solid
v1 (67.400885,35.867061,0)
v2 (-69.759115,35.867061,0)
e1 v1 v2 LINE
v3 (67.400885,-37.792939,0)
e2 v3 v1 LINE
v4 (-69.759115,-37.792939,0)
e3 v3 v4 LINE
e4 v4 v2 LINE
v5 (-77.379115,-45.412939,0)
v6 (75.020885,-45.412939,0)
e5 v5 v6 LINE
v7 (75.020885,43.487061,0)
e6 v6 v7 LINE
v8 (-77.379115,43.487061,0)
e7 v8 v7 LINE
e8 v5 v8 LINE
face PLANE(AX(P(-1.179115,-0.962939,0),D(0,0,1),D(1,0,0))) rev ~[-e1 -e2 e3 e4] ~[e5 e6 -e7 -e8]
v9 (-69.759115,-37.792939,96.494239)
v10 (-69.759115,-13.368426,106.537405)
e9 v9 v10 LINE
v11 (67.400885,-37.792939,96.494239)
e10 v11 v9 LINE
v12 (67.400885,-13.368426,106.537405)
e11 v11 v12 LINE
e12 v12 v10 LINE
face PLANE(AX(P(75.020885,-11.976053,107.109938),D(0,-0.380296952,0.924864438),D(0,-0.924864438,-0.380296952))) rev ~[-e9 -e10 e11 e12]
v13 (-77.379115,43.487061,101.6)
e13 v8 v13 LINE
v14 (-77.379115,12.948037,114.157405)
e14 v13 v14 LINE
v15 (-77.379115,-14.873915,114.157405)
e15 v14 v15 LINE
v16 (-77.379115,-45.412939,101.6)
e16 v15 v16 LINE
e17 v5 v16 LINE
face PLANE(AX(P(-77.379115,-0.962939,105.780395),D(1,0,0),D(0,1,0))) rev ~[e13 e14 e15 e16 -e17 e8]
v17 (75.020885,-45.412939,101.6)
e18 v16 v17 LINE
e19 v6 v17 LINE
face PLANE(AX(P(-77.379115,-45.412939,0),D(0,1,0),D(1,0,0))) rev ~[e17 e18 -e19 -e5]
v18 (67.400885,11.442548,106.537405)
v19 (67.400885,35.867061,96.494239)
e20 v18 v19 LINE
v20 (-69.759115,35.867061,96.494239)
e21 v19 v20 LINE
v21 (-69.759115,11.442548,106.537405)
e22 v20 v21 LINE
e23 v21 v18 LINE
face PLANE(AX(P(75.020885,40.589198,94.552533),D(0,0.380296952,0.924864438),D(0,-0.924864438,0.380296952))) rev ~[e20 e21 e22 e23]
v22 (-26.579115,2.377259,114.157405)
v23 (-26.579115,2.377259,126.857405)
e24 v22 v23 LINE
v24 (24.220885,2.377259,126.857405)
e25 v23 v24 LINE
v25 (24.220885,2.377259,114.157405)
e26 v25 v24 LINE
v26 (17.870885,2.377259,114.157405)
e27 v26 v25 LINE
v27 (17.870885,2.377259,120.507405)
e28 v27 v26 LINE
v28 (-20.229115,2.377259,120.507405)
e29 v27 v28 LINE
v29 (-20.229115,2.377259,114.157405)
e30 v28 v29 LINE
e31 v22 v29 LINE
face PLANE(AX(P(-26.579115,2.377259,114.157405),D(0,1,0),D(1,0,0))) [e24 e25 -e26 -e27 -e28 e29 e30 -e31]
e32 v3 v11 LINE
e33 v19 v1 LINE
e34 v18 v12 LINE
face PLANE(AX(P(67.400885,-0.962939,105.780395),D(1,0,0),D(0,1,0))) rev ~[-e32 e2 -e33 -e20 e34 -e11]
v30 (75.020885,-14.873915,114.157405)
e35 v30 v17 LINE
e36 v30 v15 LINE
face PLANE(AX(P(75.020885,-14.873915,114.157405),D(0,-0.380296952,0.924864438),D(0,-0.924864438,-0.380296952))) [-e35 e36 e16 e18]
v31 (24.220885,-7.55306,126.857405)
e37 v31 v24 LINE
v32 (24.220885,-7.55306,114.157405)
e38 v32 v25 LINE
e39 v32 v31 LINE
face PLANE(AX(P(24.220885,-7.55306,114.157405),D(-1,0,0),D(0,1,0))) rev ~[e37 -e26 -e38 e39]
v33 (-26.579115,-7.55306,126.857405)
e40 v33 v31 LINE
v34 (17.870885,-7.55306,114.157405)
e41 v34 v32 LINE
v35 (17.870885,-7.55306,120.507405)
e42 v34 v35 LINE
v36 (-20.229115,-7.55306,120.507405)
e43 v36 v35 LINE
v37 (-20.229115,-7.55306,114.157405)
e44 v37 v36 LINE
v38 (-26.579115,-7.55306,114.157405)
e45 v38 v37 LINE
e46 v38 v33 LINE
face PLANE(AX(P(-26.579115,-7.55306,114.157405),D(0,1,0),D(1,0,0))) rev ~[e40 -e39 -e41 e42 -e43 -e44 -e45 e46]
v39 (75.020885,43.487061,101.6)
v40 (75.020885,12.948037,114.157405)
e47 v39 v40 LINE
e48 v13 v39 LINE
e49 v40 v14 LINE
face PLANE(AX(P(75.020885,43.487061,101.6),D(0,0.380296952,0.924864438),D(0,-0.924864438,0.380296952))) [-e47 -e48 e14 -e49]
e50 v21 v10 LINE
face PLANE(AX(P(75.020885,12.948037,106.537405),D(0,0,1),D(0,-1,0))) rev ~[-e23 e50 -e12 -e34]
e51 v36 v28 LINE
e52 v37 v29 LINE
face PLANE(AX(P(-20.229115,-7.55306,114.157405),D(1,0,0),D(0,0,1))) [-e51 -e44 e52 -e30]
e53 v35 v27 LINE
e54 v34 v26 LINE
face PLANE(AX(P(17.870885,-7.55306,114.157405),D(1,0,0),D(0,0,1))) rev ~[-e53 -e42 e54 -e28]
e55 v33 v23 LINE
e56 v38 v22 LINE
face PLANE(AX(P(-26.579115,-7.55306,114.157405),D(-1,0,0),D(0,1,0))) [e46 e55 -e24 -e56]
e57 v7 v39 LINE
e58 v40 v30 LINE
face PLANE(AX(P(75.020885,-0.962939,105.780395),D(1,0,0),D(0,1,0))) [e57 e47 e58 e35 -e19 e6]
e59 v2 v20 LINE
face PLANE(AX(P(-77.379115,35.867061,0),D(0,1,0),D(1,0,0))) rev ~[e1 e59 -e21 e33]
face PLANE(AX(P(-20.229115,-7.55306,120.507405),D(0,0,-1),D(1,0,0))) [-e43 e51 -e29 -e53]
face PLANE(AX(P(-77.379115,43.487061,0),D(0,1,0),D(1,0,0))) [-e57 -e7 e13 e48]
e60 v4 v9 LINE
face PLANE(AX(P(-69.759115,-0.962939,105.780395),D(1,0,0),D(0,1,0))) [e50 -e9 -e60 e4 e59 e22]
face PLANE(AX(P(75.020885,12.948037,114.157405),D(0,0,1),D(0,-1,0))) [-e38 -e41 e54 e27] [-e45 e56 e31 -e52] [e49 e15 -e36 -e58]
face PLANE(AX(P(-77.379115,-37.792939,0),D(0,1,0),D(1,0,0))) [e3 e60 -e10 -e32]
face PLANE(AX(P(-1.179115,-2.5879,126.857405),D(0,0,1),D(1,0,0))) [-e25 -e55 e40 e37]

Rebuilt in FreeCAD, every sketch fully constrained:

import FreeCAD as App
import Part
import Sketcher
from FreeCAD import Vector
Q = App.Units.Quantity


def faces_at(feature, points):
    """Names of the faces that lie closest to the given points."""
    faces = feature.Shape.Faces
    near = lambda p: min(range(len(faces)), key=lambda i: faces[i].distToShape(Part.Vertex(*p))[0])
    return sorted({f"Face{near(p) + 1}" for p in points})

doc = App.newDocument("Part")
body = doc.addObject("PartDesign::Body", "Body")

# Sketch on XY plane
sketch1 = body.newObject("Sketcher::SketchObject", "Sketch")
sketch1.AttachmentSupport = (doc.getObject("XY_Plane"), [""])
sketch1.MapMode = "FlatFace"
sketch1.addGeometry([
    Part.LineSegment(Vector(-77, 43, 0), Vector(-77, -45, 0)),
    Part.LineSegment(Vector(-77, -45, 0), Vector(75, -45, 0)),
    Part.LineSegment(Vector(75, -45, 0), Vector(75, 43, 0)),
    Part.LineSegment(Vector(75, 43, 0), Vector(-77, 43, 0)),
], False)
sketch1.addConstraint([
    Sketcher.Constraint("Coincident", 0, 2, 1, 1),
    Sketcher.Constraint("Coincident", 1, 2, 2, 1),
    Sketcher.Constraint("Coincident", 2, 2, 3, 1),
    Sketcher.Constraint("Coincident", 3, 2, 0, 1),
    Sketcher.Constraint("Vertical", 0),
    Sketcher.Constraint("Horizontal", 1),
    Sketcher.Constraint("Vertical", 2),
    Sketcher.Constraint("Horizontal", 3),
    Sketcher.Constraint("DistanceX", 1, 1, 1, 2, Q("6 in")),
    Sketcher.Constraint("DistanceY", 0, 2, 0, 1, Q("3.5 in")),
    Sketcher.Constraint("DistanceY", 0, 2, -1, 1, Q("45.412939 mm")),
    Sketcher.Constraint("DistanceX", 0, 2, -1, 1, Q("77.379115 mm")),
])
pad1 = body.newObject("PartDesign::Pad", "Pad")
pad1.Profile = sketch1
pad1.Length = Q("4 in")

# Sketch on YZ plane
sketch2 = body.newObject("Sketcher::SketchObject", "Sketch001")
sketch2.AttachmentSupport = (doc.getObject("YZ_Plane"), [""])
sketch2.MapMode = "FlatFace"
sketch2.AttachmentOffset = App.Placement(Vector(0, 0, 75.020885), App.Rotation())
sketch2.addGeometry([
    Part.LineSegment(Vector(-15, 114, 0), Vector(-45, 102, 0)),
    Part.LineSegment(Vector(-45, 102, 0), Vector(43, 102, 0)),
    Part.LineSegment(Vector(43, 102, 0), Vector(13, 114, 0)),
    Part.LineSegment(Vector(13, 114, 0), Vector(-15, 114, 0)),
], False)
sketch2.addConstraint([
    Sketcher.Constraint("Coincident", 0, 2, 1, 1),
    Sketcher.Constraint("Coincident", 1, 2, 2, 1),
    Sketcher.Constraint("Coincident", 2, 2, 3, 1),
    Sketcher.Constraint("Coincident", 3, 2, 0, 1),
    Sketcher.Constraint("Horizontal", 1),
    Sketcher.Constraint("Horizontal", 3),
    Sketcher.Constraint("Equal", 0, 2),
    Sketcher.Constraint("DistanceX", 1, 1, 1, 2, Q("3.5 in")),
    Sketcher.Constraint("DistanceY", -1, 1, 0, 2, Q("4 in")),
    Sketcher.Constraint("Distance", 0, Q("1.3 in")),
    Sketcher.Constraint("DistanceX", 3, 2, 3, 1, Q("27.821953 mm")),
    Sketcher.Constraint("DistanceX", 0, 2, -1, 1, Q("45.412939 mm")),
])
pad2 = body.newObject("PartDesign::Pad", "Pad001")
pad2.Profile = sketch2
pad2.Length = Q("6 in")
pad2.Reversed = True

# Sketch on XY plane
sketch3 = body.newObject("Sketcher::SketchObject", "Sketch002")
sketch3.AttachmentSupport = (doc.getObject("XY_Plane"), [""])
sketch3.MapMode = "FlatFace"
sketch3.AttachmentOffset = App.Placement(Vector(0, 0, 114.157405), App.Rotation())
sketch3.addGeometry([
    Part.LineSegment(Vector(-27, 2, 0), Vector(-27, -8, 0)),
    Part.LineSegment(Vector(-27, -8, 0), Vector(24, -8, 0)),
    Part.LineSegment(Vector(24, -8, 0), Vector(24, 2, 0)),
    Part.LineSegment(Vector(24, 2, 0), Vector(-27, 2, 0)),
], False)
sketch3.addConstraint([
    Sketcher.Constraint("Coincident", 0, 2, 1, 1),
    Sketcher.Constraint("Coincident", 1, 2, 2, 1),
    Sketcher.Constraint("Coincident", 2, 2, 3, 1),
    Sketcher.Constraint("Coincident", 3, 2, 0, 1),
    Sketcher.Constraint("Vertical", 0),
    Sketcher.Constraint("Horizontal", 1),
    Sketcher.Constraint("Vertical", 2),
    Sketcher.Constraint("Horizontal", 3),
    Sketcher.Constraint("DistanceX", 1, 1, 1, 2, Q("2 in")),
    Sketcher.Constraint("DistanceY", 0, 2, 0, 1, Q("9.930319 mm")),
    Sketcher.Constraint("DistanceY", 0, 2, -1, 1, Q("7.55306 mm")),
    Sketcher.Constraint("DistanceX", 0, 2, -1, 1, Q("26.579115 mm")),
])
pad3 = body.newObject("PartDesign::Pad", "Pad002")
pad3.Profile = sketch3
pad3.Length = Q("0.5 in")

# Sketch on XZ plane
sketch4 = body.newObject("Sketcher::SketchObject", "Sketch003")
sketch4.AttachmentSupport = (doc.getObject("XZ_Plane"), [""])
sketch4.MapMode = "FlatFace"
sketch4.AttachmentOffset = App.Placement(Vector(0, 0, 7.55306), App.Rotation())
sketch4.addGeometry([
    Part.LineSegment(Vector(-20, 121, 0), Vector(-20, 114, 0)),
    Part.LineSegment(Vector(-20, 114, 0), Vector(18, 114, 0)),
    Part.LineSegment(Vector(18, 114, 0), Vector(18, 121, 0)),
    Part.LineSegment(Vector(18, 121, 0), Vector(-20, 121, 0)),
], False)
sketch4.addConstraint([
    Sketcher.Constraint("Coincident", 0, 2, 1, 1),
    Sketcher.Constraint("Coincident", 1, 2, 2, 1),
    Sketcher.Constraint("Coincident", 2, 2, 3, 1),
    Sketcher.Constraint("Coincident", 3, 2, 0, 1),
    Sketcher.Constraint("Vertical", 0),
    Sketcher.Constraint("Horizontal", 1),
    Sketcher.Constraint("Vertical", 2),
    Sketcher.Constraint("Horizontal", 3),
    Sketcher.Constraint("DistanceX", 1, 1, 1, 2, Q("1.5 in")),
    Sketcher.Constraint("DistanceY", 0, 2, 0, 1, Q("0.25 in")),
    Sketcher.Constraint("DistanceX", 0, 2, -1, 1, Q("20.229115 mm")),
    Sketcher.Constraint("DistanceY", -1, 1, 0, 2, Q("114.157405 mm")),
])
pocket1 = body.newObject("PartDesign::Pocket", "Pocket")
pocket1.Profile = sketch4
pocket1.Length = Q("1 in")
doc.recompute()

thickness = body.newObject("PartDesign::Thickness", "Thickness")
thickness.Base = (pocket1, faces_at(pocket1, [(-1.179, -0.963, 0)]))
thickness.Value = Q("0.3 in")
thickness.Reversed = True
thickness.Join = "Intersection"

doc.recompute()
